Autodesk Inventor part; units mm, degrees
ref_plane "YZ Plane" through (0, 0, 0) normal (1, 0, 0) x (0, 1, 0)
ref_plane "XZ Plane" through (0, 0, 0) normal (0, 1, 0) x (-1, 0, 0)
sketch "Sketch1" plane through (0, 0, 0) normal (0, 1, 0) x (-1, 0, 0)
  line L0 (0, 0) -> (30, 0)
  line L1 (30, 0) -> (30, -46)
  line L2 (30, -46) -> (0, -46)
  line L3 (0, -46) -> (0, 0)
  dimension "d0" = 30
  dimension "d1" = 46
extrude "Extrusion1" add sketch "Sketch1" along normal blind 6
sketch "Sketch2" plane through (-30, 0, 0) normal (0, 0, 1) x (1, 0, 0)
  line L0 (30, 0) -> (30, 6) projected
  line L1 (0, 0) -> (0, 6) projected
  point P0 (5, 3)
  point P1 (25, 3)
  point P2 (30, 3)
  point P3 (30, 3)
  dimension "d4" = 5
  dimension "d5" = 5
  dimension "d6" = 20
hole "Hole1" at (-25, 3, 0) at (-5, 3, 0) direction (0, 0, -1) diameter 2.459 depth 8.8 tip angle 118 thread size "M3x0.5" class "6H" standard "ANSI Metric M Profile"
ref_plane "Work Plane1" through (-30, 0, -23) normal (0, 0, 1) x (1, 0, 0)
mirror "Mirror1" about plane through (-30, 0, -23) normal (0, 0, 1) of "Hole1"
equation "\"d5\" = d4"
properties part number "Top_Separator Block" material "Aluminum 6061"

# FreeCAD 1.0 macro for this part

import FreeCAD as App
import Part
import Sketcher
from FreeCAD import Vector

doc = App.newDocument("Part")
params = doc.addObject("Spreadsheet::Sheet", "Params")
for row, (alias, value) in enumerate([
    ("sketch1_width", "30 mm"),
    ("sketch1_height", "46 mm"),
    ("pad1_length", "6 mm"),
    ("hole_diameter", "2.459 mm"),
    ("hole_depth", "8.8 mm"),
], start=1):
    params.set(f"A{row}", alias)
    params.set(f"B{row}", "=" + value)
    params.setAlias(f"B{row}", alias)

body = doc.addObject("PartDesign::Body", "Body")

sketch1 = body.newObject("Sketcher::SketchObject", "Sketch")
sketch1.AttachmentSupport = (doc.getObject("XZ_Plane"), [""])
sketch1.MapMode = "FlatFace"
sketch1.addGeometry([
    Part.LineSegment(Vector(-30, 0, 0), Vector(0, 0, 0)),
    Part.LineSegment(Vector(0, 0, 0), Vector(0, -46, 0)),
    Part.LineSegment(Vector(0, -46, 0), Vector(-30, -46, 0)),
    Part.LineSegment(Vector(-30, -46, 0), Vector(-30, 0, 0)),
], False)
sketch1.addConstraint([
    Sketcher.Constraint("Coincident", 0, 2, 1, 1),
    Sketcher.Constraint("Coincident", 1, 2, 2, 1),
    Sketcher.Constraint("Coincident", 2, 2, 3, 1),
    Sketcher.Constraint("Coincident", 3, 2, 0, 1),
    Sketcher.Constraint("Horizontal", 0),
    Sketcher.Constraint("Vertical", 1),
    Sketcher.Constraint("Horizontal", 2),
    Sketcher.Constraint("Vertical", 3),
    Sketcher.Constraint("Coincident", 0, 2, -1, 1),
    Sketcher.Constraint("DistanceX", 0, 1, 0, 2, 30.0),
    Sketcher.Constraint("DistanceY", 1, 2, 1, 1, 46.0),
])
sketch1.setExpression("Constraints[9]", "Params.sketch1_width")
sketch1.setExpression("Constraints[10]", "Params.sketch1_height")
pad1 = body.newObject("PartDesign::Pad", "Pad")
pad1.Profile = sketch1
pad1.setExpression("Length", "Params.pad1_length")
pad1.Reversed = True

sketch2 = body.newObject("Sketcher::SketchObject", "Sketch001")
sketch2.AttachmentSupport = (doc.getObject("XY_Plane"), [""])
sketch2.MapMode = "FlatFace"
sketch2.addGeometry([
    Part.Circle(Vector(-25, 3, 0), Vector(0, 0, 1), 1.2),
    Part.Circle(Vector(-5, 3, 0), Vector(0, 0, 1), 1.2),
], False)
sketch2.addConstraint([
    Sketcher.Constraint("Equal", 0, 1),
    Sketcher.Constraint("Horizontal", 0, 3, 1, 3),
    Sketcher.Constraint("Diameter", 0, 2.459),
    Sketcher.Constraint("DistanceX", 0, 3, -1, 1, 25.0),
    Sketcher.Constraint("DistanceY", -1, 1, 0, 3, 3.0),
    Sketcher.Constraint("DistanceX", 1, 3, -1, 1, 5.0),
])
doc.recompute()
hole = body.newObject("PartDesign::Hole", "Hole")
hole.Profile = sketch2
hole.ThreadType = "None"
hole.setExpression("Diameter", "Params.hole_diameter")
hole.DepthType = "Dimension"
hole.setExpression("Depth", "Params.hole_depth")
hole.DrillPoint = "Angled"
hole.DrillPointAngle = 118
doc.recompute()

datumplane = body.newObject("PartDesign::Plane", "DatumPlane")
datumplane.AttachmentSupport = (doc.getObject("XY_Plane"), [""])
datumplane.MapMode = "FlatFace"
datumplane.AttachmentOffset = App.Placement(Vector(0, 0, -23), App.Rotation())
mirrored = body.newObject("PartDesign::Mirrored", "Mirrored")
mirrored.Originals = [hole]
mirrored.MirrorPlane = (datumplane, [""])
body.Tip = mirrored

doc.recompute()
